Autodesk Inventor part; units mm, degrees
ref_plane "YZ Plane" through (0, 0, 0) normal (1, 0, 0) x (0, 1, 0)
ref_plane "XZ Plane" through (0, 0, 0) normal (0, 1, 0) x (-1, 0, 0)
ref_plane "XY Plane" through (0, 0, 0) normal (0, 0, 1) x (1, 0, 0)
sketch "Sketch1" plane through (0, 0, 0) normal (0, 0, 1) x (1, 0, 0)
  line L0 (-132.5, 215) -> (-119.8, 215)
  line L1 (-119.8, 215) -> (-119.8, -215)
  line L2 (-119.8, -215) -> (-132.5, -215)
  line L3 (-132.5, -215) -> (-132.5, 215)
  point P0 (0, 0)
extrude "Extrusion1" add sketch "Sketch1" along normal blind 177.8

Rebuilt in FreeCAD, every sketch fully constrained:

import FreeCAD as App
import Part
import Sketcher

V = App.Vector
Q = App.Units.Quantity


def add_polygon(sketch, points):
    """Adds a closed chain of lines whose ends are joined by coincident constraints."""
    first, n = sketch.GeometryCount, len(points)
    for a, b in zip(points, points[1:] + points[:1]):
        sketch.addGeometry(Part.LineSegment(App.Vector(*a, 0), App.Vector(*b, 0)), False)
    for i in range(n):
        sketch.addConstraint(Sketcher.Constraint("Coincident", first + i, 2, first + (i + 1) % n, 1))

doc = App.newDocument("Part")
body = doc.addObject("PartDesign::Body", "Body")

sketch1 = doc.addObject("Sketcher::SketchObject", "Sketch")
body.addObject(sketch1)
sketch1.AttachmentSupport = (doc.XY_Plane, [""])
sketch1.MapMode = "FlatFace"
add_polygon(sketch1, [(-120, 215), (-132, 215), (-132, -215), (-120, -215)])
sketch1.addConstraint([
    Sketcher.Constraint("Horizontal", 0),
    Sketcher.Constraint("Vertical", 1),
    Sketcher.Constraint("Horizontal", 2),
    Sketcher.Constraint("Vertical", 3),
    Sketcher.Constraint("DistanceX", 0, 2, 0, 1, Q("0.5 in")),
    Sketcher.Constraint("DistanceY", 1, 2, 1, 1, 430.0),
    Sketcher.Constraint("DistanceX", 0, 2, -1, 1, 132.5),
    Sketcher.Constraint("DistanceY", -1, 1, 0, 2, 215.0),
])
pad1 = doc.addObject("PartDesign::Pad", "Pad")
body.addObject(pad1)
pad1.Profile = sketch1
pad1.Length = Q("7 in")

doc.recompute()
